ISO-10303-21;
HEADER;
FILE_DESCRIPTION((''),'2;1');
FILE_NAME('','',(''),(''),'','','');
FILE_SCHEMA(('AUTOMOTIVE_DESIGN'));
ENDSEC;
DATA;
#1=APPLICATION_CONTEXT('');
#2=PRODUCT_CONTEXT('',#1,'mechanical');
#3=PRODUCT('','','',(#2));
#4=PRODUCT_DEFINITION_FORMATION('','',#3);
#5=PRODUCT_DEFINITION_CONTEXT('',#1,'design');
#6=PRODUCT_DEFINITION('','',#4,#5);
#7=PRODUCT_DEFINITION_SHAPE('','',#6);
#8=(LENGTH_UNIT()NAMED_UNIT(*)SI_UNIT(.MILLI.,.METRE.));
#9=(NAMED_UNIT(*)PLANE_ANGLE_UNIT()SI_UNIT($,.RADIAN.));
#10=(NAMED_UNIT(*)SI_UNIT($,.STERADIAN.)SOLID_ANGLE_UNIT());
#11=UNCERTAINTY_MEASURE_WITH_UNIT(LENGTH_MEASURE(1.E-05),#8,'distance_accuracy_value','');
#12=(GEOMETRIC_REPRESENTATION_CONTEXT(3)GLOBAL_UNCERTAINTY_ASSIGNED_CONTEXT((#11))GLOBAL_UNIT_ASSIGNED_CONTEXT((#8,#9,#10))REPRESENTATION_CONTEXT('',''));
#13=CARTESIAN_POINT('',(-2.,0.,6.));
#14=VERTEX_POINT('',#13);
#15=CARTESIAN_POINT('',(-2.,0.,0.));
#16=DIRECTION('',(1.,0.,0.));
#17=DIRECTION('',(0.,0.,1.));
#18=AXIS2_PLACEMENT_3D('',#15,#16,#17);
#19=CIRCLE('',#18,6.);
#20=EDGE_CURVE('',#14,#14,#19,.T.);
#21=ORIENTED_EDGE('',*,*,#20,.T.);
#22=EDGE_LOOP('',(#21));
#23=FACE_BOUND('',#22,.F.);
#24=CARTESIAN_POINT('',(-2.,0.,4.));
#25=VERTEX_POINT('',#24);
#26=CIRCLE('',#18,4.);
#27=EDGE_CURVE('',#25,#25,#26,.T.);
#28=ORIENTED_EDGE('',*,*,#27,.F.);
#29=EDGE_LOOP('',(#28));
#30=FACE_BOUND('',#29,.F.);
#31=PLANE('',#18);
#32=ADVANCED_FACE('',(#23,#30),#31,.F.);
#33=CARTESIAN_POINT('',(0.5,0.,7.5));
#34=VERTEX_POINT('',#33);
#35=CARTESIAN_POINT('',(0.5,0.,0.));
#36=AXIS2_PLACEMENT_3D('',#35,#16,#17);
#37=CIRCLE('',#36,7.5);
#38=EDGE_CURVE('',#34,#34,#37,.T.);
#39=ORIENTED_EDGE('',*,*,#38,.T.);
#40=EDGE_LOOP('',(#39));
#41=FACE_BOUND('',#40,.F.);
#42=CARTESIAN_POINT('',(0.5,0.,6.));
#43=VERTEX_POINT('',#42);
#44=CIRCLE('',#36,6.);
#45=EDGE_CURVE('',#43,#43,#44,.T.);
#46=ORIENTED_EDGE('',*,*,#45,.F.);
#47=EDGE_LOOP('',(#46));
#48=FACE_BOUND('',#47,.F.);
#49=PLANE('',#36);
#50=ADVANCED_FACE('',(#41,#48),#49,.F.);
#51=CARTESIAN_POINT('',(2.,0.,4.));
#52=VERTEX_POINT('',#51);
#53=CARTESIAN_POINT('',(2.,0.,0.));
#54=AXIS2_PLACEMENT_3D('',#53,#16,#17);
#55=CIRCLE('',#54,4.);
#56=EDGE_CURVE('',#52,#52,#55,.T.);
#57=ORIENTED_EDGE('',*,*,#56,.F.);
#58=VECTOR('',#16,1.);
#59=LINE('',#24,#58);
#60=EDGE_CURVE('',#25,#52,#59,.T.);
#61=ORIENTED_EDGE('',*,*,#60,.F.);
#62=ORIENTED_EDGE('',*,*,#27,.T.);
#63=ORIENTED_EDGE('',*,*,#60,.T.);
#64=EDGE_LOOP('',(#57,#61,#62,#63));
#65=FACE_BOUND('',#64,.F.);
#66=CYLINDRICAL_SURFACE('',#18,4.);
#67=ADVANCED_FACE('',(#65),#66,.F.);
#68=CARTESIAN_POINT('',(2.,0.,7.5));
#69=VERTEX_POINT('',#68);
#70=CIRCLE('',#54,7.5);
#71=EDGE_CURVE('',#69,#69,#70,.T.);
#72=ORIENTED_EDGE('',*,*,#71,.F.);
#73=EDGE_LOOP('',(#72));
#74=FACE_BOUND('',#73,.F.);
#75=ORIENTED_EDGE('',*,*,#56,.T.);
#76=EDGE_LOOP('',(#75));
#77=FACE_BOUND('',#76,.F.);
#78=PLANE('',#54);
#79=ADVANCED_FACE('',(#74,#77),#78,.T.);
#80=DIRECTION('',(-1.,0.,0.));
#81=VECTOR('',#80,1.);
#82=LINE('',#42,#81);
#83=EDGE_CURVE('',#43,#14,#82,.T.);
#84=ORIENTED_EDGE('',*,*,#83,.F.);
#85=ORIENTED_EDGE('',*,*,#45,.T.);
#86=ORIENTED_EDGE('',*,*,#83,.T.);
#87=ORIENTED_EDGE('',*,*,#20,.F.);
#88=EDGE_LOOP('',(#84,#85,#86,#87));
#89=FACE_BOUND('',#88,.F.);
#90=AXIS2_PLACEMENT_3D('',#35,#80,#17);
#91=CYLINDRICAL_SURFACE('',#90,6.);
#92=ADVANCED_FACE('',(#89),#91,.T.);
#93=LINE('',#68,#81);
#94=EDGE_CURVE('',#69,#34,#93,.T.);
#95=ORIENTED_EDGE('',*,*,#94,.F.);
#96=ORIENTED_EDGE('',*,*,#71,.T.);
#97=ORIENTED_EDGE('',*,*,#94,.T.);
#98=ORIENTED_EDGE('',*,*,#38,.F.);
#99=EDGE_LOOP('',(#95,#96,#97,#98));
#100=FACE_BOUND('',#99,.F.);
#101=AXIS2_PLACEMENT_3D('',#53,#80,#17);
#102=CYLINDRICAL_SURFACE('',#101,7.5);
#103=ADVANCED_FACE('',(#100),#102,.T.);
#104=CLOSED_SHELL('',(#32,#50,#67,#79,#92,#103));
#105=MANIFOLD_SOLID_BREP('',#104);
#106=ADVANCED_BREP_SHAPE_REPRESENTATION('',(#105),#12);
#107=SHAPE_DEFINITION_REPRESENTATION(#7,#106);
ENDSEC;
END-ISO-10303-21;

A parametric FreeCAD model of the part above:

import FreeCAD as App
import Part
import Sketcher
from FreeCAD import Vector
Q = App.Units.Quantity

doc = App.newDocument("Part")
body = doc.addObject("PartDesign::Body", "Body")

# Sketch on XZ plane
sketch1 = doc.addObject("Sketcher::SketchObject", "Sketch")
body.addObject(sketch1)
sketch1.AttachmentSupport = (doc.XZ_Plane, [""])
sketch1.MapMode = "FlatFace"
sketch1.addGeometry([
    Part.LineSegment(Vector(2, 4, 0), Vector(-2, 4, 0)),  # 0
    Part.LineSegment(Vector(-2, 4, 0), Vector(-2, 6, 0)),  # 1
    Part.LineSegment(Vector(-2, 6, 0), Vector(0.5, 6, 0)),  # 2
    Part.LineSegment(Vector(0.5, 6, 0), Vector(0.5, 7.5, 0)),  # 3
    Part.LineSegment(Vector(0.5, 7.5, 0), Vector(2, 7.5, 0)),  # 4
    Part.LineSegment(Vector(2, 7.5, 0), Vector(2, 4, 0)),  # 5
], False)
sketch1.addConstraint([
    Sketcher.Constraint("Coincident", 0, 2, 1, 1),
    Sketcher.Constraint("Coincident", 1, 2, 2, 1),
    Sketcher.Constraint("Coincident", 2, 2, 3, 1),
    Sketcher.Constraint("Coincident", 3, 2, 4, 1),
    Sketcher.Constraint("Coincident", 4, 2, 5, 1),
    Sketcher.Constraint("Coincident", 5, 2, 0, 1),
    Sketcher.Constraint("Horizontal", 0),
    Sketcher.Constraint("Vertical", 1),
    Sketcher.Constraint("Horizontal", 2),
    Sketcher.Constraint("Vertical", 3),
    Sketcher.Constraint("Horizontal", 4),
    Sketcher.Constraint("Vertical", 5),
    Sketcher.Constraint("Equal", 4, 3),
    Sketcher.Constraint("DistanceX", 2, 1, 2, 2, Q("2.5 mm")),
    Sketcher.Constraint("DistanceX", 4, 1, 4, 2, Q("1.5 mm")),
    Sketcher.Constraint("DistanceY", 1, 1, 1, 2, Q("2 mm")),
    Sketcher.Constraint("DistanceX", 0, 2, -1, 1, Q("2 mm")),
    Sketcher.Constraint("DistanceY", -1, 1, 0, 2, Q("4 mm")),
])
revolution = doc.addObject("PartDesign::Revolution", "Revolution")
body.addObject(revolution)
revolution.Profile = sketch1
revolution.ReferenceAxis = (sketch1, ["H_Axis"])
revolution.Angle = 360

doc.recompute()
